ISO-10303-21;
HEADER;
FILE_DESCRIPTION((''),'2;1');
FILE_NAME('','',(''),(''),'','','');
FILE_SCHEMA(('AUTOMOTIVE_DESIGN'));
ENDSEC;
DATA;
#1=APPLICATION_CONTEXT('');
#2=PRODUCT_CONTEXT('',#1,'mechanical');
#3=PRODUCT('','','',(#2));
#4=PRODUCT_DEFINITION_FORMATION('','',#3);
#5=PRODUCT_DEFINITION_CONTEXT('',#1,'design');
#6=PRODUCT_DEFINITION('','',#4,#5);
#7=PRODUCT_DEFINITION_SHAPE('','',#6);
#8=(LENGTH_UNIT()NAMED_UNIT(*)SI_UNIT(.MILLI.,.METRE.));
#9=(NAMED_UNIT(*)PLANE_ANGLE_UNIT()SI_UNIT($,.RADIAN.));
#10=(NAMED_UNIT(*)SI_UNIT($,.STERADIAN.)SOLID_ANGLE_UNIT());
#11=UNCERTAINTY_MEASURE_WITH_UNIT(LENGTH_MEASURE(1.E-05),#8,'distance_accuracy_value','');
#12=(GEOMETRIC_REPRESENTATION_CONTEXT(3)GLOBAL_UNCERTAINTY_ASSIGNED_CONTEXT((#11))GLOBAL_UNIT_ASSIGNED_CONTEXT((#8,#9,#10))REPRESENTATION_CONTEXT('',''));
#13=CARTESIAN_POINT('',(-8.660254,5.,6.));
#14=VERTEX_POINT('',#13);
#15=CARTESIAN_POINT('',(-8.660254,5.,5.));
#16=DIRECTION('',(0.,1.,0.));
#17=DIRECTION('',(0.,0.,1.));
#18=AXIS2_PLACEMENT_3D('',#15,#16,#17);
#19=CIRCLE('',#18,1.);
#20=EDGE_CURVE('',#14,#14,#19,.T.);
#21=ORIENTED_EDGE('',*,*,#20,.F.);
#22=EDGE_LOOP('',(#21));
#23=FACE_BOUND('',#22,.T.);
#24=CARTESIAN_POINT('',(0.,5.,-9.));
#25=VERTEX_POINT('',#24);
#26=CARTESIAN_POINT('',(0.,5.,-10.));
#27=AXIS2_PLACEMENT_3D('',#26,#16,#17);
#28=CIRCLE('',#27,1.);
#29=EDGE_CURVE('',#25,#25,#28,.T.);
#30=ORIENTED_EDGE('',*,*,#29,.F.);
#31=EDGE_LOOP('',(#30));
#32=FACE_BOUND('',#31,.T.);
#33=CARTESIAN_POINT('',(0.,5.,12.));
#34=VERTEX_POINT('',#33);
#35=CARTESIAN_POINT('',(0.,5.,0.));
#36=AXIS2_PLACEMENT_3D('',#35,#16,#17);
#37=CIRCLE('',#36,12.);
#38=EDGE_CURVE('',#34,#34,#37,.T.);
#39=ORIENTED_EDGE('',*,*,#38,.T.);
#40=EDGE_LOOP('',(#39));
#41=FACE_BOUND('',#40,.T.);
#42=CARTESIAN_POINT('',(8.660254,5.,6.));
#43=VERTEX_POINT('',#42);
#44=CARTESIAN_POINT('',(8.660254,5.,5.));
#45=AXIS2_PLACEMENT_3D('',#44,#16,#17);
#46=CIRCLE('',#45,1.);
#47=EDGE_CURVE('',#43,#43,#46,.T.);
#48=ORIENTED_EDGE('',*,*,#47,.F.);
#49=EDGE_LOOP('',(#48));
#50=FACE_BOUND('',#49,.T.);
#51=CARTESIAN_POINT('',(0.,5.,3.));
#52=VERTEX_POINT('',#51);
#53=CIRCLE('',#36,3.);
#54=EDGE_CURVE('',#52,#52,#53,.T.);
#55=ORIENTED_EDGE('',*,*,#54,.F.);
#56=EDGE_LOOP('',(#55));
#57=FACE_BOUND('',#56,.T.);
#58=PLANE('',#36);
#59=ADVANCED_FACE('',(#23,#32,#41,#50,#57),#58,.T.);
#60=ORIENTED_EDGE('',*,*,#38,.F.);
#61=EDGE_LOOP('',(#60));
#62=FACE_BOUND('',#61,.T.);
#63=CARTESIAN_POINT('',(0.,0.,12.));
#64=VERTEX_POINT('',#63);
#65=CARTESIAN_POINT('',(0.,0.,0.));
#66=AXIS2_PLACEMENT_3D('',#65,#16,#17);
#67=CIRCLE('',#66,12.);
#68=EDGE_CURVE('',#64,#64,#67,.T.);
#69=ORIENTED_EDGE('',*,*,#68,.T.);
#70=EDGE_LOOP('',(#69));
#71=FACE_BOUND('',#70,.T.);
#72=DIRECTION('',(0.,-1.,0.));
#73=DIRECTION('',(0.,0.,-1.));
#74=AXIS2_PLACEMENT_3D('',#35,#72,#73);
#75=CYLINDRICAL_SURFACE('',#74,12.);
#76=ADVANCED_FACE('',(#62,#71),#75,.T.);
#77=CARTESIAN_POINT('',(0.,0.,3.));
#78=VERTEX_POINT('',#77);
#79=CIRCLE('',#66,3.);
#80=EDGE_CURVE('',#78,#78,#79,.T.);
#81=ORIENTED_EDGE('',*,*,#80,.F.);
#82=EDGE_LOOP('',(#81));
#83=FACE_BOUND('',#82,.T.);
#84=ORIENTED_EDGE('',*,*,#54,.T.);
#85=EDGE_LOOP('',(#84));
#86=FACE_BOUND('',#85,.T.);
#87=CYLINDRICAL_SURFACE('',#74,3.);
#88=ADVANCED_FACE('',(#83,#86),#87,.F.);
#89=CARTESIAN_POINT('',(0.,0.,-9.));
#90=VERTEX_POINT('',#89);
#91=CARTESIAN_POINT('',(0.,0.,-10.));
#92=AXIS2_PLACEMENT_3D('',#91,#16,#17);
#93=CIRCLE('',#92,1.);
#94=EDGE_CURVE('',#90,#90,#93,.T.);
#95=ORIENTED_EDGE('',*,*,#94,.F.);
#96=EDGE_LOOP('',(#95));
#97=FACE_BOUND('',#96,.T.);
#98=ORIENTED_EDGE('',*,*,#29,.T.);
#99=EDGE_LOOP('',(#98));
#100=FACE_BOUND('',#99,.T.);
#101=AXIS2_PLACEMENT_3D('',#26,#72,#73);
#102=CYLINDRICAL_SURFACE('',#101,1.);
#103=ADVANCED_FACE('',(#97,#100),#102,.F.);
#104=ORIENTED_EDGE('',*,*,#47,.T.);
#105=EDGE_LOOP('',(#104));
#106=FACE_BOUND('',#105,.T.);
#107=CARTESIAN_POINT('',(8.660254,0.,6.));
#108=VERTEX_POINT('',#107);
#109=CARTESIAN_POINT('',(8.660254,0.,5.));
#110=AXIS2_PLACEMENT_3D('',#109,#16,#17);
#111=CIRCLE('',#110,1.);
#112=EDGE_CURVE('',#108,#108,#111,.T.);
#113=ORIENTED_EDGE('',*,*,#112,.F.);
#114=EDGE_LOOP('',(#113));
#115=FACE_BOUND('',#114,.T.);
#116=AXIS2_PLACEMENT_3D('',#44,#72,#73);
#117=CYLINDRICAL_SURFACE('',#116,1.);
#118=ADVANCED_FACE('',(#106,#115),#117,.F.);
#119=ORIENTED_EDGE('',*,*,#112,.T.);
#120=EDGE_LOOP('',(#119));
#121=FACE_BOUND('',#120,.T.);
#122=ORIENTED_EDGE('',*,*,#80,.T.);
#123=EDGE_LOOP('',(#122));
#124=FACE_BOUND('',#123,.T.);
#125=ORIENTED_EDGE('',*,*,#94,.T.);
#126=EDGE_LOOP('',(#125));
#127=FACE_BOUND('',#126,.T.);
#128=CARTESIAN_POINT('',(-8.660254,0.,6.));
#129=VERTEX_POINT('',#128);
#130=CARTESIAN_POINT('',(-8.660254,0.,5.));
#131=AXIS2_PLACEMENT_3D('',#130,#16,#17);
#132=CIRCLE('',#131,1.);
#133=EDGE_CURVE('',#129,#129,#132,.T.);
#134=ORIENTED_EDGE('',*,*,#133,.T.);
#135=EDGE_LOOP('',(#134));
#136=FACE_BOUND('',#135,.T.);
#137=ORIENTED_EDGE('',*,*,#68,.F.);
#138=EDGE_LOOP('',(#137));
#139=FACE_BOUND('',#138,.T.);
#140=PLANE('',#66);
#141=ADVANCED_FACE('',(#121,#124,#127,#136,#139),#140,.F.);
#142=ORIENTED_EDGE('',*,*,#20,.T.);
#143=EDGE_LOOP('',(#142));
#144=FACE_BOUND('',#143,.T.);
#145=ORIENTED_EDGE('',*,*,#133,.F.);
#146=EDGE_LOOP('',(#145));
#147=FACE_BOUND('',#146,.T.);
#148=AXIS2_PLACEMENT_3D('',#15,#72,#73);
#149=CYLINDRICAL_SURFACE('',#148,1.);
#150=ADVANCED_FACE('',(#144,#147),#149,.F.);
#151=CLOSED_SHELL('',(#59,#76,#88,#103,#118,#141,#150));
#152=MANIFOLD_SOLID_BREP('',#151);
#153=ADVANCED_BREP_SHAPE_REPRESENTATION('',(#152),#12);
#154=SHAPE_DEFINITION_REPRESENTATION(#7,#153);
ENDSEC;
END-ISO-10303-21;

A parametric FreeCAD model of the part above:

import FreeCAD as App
import Part
import Sketcher

doc = App.newDocument("Part")
body = doc.addObject("PartDesign::Body", "Body")

sketch1 = doc.addObject("Sketcher::SketchObject", "Sketch")
body.addObject(sketch1)
sketch1.AttachmentSupport = (doc.XZ_Plane, [""])
sketch1.MapMode = "FlatFace"
sketch1.addGeometry(Part.Circle(App.Vector(0, 0, 0), App.Vector(0, 0, 1), 12), False)
sketch1.addGeometry(Part.Circle(App.Vector(0, -10, 0), App.Vector(0, 0, 1), 1), False)
sketch1.addGeometry(Part.Circle(App.Vector(-8.7, 5, 0), App.Vector(0, 0, 1), 1), False)
sketch1.addGeometry(Part.Circle(App.Vector(0, 0, 0), App.Vector(0, 0, 1), 3), False)
sketch1.addGeometry(Part.Circle(App.Vector(8.7, 5, 0), App.Vector(0, 0, 1), 1), False)
sketch1.addConstraint(Sketcher.Constraint("Coincident", 0, 3, -1, 1))
sketch1.addConstraint(Sketcher.Constraint("Coincident", 3, 3, -1, 1))
sketch1.addConstraint(Sketcher.Constraint("Equal", 1, 2))
sketch1.addConstraint(Sketcher.Constraint("Equal", 2, 4))
sketch1.addConstraint(Sketcher.Constraint("Symmetric", 2, 3, 4, 3, -2))
sketch1.addConstraint(Sketcher.Constraint("PointOnObject", 1, 3, -2))
sketch1.addConstraint(Sketcher.Constraint("Diameter", 0, 24.0))
sketch1.addConstraint(Sketcher.Constraint("Diameter", 1, 2.0))
sketch1.addConstraint(Sketcher.Constraint("Diameter", 3, 6.0))
sketch1.addConstraint(Sketcher.Constraint("DistanceY", 1, 3, -1, 1, 10.0))
sketch1.addConstraint(Sketcher.Constraint("DistanceY", -1, 1, 2, 3, 5.0))
sketch1.addConstraint(Sketcher.Constraint("DistanceX", 2, 3, 4, 3, 17.320508))
pad1 = doc.addObject("PartDesign::Pad", "Pad")
body.addObject(pad1)
pad1.Profile = sketch1
pad1.Length = 5
pad1.Reversed = True

doc.recompute()
